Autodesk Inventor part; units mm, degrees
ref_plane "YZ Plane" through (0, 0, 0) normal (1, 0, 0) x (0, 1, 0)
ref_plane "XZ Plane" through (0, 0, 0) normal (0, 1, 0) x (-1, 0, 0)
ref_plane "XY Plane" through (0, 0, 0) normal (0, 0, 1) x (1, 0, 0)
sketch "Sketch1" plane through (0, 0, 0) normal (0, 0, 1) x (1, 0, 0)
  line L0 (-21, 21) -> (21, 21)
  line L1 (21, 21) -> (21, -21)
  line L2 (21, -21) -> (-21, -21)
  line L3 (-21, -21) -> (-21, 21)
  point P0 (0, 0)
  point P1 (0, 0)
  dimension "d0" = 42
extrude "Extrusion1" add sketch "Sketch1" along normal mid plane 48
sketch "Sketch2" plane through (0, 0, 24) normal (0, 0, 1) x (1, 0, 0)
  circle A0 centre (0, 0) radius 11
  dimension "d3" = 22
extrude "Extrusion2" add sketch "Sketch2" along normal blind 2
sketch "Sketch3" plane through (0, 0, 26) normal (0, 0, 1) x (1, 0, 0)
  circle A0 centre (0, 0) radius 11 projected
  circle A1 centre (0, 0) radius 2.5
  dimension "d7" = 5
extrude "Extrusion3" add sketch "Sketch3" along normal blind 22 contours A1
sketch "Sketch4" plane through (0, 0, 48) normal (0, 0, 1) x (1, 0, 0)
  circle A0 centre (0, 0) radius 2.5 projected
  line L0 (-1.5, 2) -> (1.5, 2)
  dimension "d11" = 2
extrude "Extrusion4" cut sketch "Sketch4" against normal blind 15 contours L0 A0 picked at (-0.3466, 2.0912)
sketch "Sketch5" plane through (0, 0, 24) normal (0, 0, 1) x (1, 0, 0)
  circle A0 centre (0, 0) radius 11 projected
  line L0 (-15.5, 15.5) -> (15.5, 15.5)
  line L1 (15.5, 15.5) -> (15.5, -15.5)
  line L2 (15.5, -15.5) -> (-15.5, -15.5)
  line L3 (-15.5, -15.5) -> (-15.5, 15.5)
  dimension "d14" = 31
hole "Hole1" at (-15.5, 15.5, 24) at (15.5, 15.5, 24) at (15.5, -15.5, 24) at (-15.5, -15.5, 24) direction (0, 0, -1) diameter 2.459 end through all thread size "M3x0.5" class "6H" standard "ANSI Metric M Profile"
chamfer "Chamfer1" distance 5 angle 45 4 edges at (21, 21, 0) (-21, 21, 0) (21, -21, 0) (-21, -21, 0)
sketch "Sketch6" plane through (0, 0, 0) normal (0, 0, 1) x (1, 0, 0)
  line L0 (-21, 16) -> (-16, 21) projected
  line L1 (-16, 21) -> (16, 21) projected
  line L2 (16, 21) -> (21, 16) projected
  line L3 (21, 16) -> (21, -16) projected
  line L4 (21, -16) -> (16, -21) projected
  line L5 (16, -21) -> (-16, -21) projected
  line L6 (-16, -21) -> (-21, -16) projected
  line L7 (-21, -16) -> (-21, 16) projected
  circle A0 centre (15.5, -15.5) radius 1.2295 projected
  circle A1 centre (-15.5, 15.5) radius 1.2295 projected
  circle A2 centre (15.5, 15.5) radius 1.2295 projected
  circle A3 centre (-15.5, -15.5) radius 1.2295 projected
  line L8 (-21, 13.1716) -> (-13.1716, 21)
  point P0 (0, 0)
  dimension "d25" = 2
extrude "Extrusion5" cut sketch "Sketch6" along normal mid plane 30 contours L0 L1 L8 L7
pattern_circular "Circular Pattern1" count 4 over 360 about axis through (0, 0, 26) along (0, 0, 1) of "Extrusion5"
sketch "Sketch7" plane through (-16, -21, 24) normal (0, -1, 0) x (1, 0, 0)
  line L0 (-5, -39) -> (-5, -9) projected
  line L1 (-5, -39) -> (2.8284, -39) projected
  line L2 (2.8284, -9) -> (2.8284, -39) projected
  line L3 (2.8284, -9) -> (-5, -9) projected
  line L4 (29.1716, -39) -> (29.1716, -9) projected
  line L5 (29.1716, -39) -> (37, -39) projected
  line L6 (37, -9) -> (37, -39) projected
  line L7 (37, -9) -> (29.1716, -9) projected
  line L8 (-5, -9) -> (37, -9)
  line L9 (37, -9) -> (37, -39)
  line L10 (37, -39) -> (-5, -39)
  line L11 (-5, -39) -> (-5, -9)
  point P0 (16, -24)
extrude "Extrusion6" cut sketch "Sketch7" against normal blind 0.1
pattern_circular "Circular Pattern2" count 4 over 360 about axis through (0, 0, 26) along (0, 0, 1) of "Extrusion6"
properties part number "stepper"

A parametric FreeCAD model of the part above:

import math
import FreeCAD as App
import Part
import Sketcher
from FreeCAD import Vector
Q = App.Units.Quantity


def edges_at(feature, points):
    """Names of the edges that pass closest to the given points."""
    edges = feature.Shape.Edges
    near = lambda p: min(range(len(edges)), key=lambda i: edges[i].distToShape(Part.Vertex(*p))[0])
    return sorted({f"Edge{near(p) + 1}" for p in points})


def add_polygon(sketch, points):
    """Adds a closed chain of lines whose ends are joined by coincident constraints."""
    first, n = sketch.GeometryCount, len(points)
    for a, b in zip(points, points[1:] + points[:1]):
        sketch.addGeometry(Part.LineSegment(App.Vector(*a, 0), App.Vector(*b, 0)), False)
    for i in range(n):
        sketch.addConstraint(Sketcher.Constraint("Coincident", first + i, 2, first + (i + 1) % n, 1))

doc = App.newDocument("Part")
body = doc.addObject("PartDesign::Body", "Body")

# Sketch on XY plane
sketch1 = doc.addObject("Sketcher::SketchObject", "Sketch")
body.addObject(sketch1)
sketch1.AttachmentSupport = (doc.XY_Plane, [""])
sketch1.MapMode = "FlatFace"
add_polygon(sketch1, [(21, 21), (-21, 21), (-21, -21), (21, -21)])  # lines 0-3
sketch1.addConstraint([
    Sketcher.Constraint("Horizontal", 0),
    Sketcher.Constraint("Vertical", 1),
    Sketcher.Constraint("Horizontal", 2),
    Sketcher.Constraint("Vertical", 3),
    Sketcher.Constraint("Symmetric", 0, 2, 2, 2, -1, 1),
    Sketcher.Constraint("Equal", 2, 1),
    Sketcher.Constraint("DistanceX", 0, 2, 0, 1, Q("42 mm")),
])
pad1 = doc.addObject("PartDesign::Pad", "Pad")
body.addObject(pad1)
pad1.Profile = sketch1
pad1.Length = 48
pad1.Midplane = True

# Sketch on XY plane
sketch2 = doc.addObject("Sketcher::SketchObject", "Sketch001")
body.addObject(sketch2)
sketch2.AttachmentSupport = (doc.XY_Plane, [""])
sketch2.MapMode = "FlatFace"
sketch2.AttachmentOffset = App.Placement(Vector(0, 0, 24), App.Rotation())
sketch2.addGeometry(Part.Circle(Vector(0, 0, 0), Vector(0, 0, 1), 11), False)
sketch2.addConstraint([
    Sketcher.Constraint("Coincident", 0, 3, -1, 1),
    Sketcher.Constraint("Diameter", 0, Q("22 mm")),
])
pad2 = doc.addObject("PartDesign::Pad", "Pad001")
body.addObject(pad2)
pad2.Profile = sketch2
pad2.Length = 2

# Sketch on XY plane
sketch3 = doc.addObject("Sketcher::SketchObject", "Sketch002")
body.addObject(sketch3)
sketch3.AttachmentSupport = (doc.XY_Plane, [""])
sketch3.MapMode = "FlatFace"
sketch3.AttachmentOffset = App.Placement(Vector(0, 0, 26), App.Rotation())
sketch3.addGeometry(Part.Circle(Vector(0, 0, 0), Vector(0, 0, 1), 2.5), False)
sketch3.addConstraint([
    Sketcher.Constraint("Coincident", 0, 3, -1, 1),
    Sketcher.Constraint("Diameter", 0, Q("5 mm")),
])
pad3 = doc.addObject("PartDesign::Pad", "Pad002")
body.addObject(pad3)
pad3.Profile = sketch3
pad3.Length = 22

# Sketch on XY plane
sketch4 = doc.addObject("Sketcher::SketchObject", "Sketch003")
body.addObject(sketch4)
sketch4.AttachmentSupport = (doc.XY_Plane, [""])
sketch4.MapMode = "FlatFace"
sketch4.AttachmentOffset = App.Placement(Vector(0, 0, 48), App.Rotation())
sketch4.addGeometry([
    Part.LineSegment(Vector(-1.5, 2, 0), Vector(1.5, 2, 0)),
    Part.ArcOfCircle(Part.Circle(Vector(0, 0, 0), Vector(0, 0, 1), 2.5), math.radians(53), math.radians(127)),
], False)
sketch4.addConstraint([
    Sketcher.Constraint("Coincident", 0, 1, 1, 2),
    Sketcher.Constraint("Coincident", 1, 1, 0, 2),
    Sketcher.Constraint("Horizontal", 0),
    Sketcher.Constraint("Coincident", 1, 3, -1, 1),
    Sketcher.Constraint("DistanceY", -1, 1, 0, 1, Q("2 mm")),
    Sketcher.Constraint("Radius", 1, Q("2.5 mm")),
])
pocket1 = doc.addObject("PartDesign::Pocket", "Pocket")
body.addObject(pocket1)
pocket1.Profile = sketch4
pocket1.Length = 15

# Sketch on XY plane
sketch5 = doc.addObject("Sketcher::SketchObject", "Sketch004")
body.addObject(sketch5)
sketch5.AttachmentSupport = (doc.XY_Plane, [""])
sketch5.MapMode = "FlatFace"
sketch5.AttachmentOffset = App.Placement(Vector(0, 0, 24), App.Rotation())
sketch5.addGeometry([
    Part.Circle(Vector(-15.5, 15.5, 0), Vector(0, 0, 1), 1.2),
    Part.Circle(Vector(15.5, 15.5, 0), Vector(0, 0, 1), 1.2),
    Part.Circle(Vector(15.5, -15.5, 0), Vector(0, 0, 1), 1.2),
    Part.Circle(Vector(-15.5, -15.5, 0), Vector(0, 0, 1), 1.2),
], False)
sketch5.addConstraint([
    Sketcher.Constraint("Equal", 0, 1),
    Sketcher.Constraint("Equal", 1, 2),
    Sketcher.Constraint("Equal", 2, 3),
    Sketcher.Constraint("Symmetric", 0, 3, 2, 3, -1, 1),
    Sketcher.Constraint("Symmetric", 1, 3, 3, 3, -1, 1),
    Sketcher.Constraint("Symmetric", 0, 3, 1, 3, -2),
    Sketcher.Constraint("Diameter", 0, Q("2.459 mm")),
    Sketcher.Constraint("DistanceX", 0, 3, 1, 3, Q("31 mm")),
    Sketcher.Constraint("DistanceY", 2, 3, 1, 3, Q("31 mm")),
])
doc.recompute()
hole = doc.addObject("PartDesign::Hole", "Hole")
body.addObject(hole)
hole.Profile = sketch5
hole.ThreadType = "None"
hole.Diameter = 2.459
hole.DepthType = "ThroughAll"
doc.recompute()

chamfer = doc.addObject("PartDesign::Chamfer", "Chamfer")
body.addObject(chamfer)
chamfer.Base = (hole, edges_at(hole, [
    (21, 21, 0),
    (-21, 21, 0),
    (21, -21, 0),
    (-21, -21, 0),
]))
chamfer.Size = 5

# Sketch on XY plane
sketch6 = doc.addObject("Sketcher::SketchObject", "Sketch005")
body.addObject(sketch6)
sketch6.AttachmentSupport = (doc.XY_Plane, [""])
sketch6.MapMode = "FlatFace"
add_polygon(sketch6, [(-16, 21), (-21, 16), (-21, 13.2), (-13.2, 21)])  # lines 0-3
sketch6.addConstraint([
    Sketcher.Constraint("Vertical", 1),
    Sketcher.Constraint("Horizontal", 3),
    Sketcher.Constraint("Parallel", 0, 2),
    Sketcher.Constraint("Equal", 3, 1),
    Sketcher.Constraint("DistanceX", 0, 2, -1, 1, Q("21 mm")),
    Sketcher.Constraint("DistanceY", -1, 1, 0, 2, Q("16 mm")),
    Sketcher.Constraint("DistanceY", -1, 1, 2, 2, Q("21 mm")),
    Sketcher.Constraint("Distance", 2, Q("11.071 mm")),
])
pocket2 = doc.addObject("PartDesign::Pocket", "Pocket001")
body.addObject(pocket2)
pocket2.Profile = sketch6
pocket2.Length = 30
pocket2.Midplane = True
doc.recompute()

polarpattern = doc.addObject("PartDesign::PolarPattern", "PolarPattern")
body.addObject(polarpattern)
polarpattern.Originals = [pocket2]
polarpattern.Axis = (doc.Z_Axis, [""])
polarpattern.Angle = 360
polarpattern.Occurrences = 4
body.Tip = polarpattern

# Sketch on XZ plane
sketch7 = doc.addObject("Sketcher::SketchObject", "Sketch006")
body.addObject(sketch7)
sketch7.AttachmentSupport = (doc.XZ_Plane, [""])
sketch7.MapMode = "FlatFace"
sketch7.AttachmentOffset = App.Placement(Vector(0, 0, 21), App.Rotation())
add_polygon(sketch7, [(-21, 15), (-21, -15), (21, -15), (21, 15)])  # lines 0-3
sketch7.addConstraint([
    Sketcher.Constraint("Vertical", 0),
    Sketcher.Constraint("Horizontal", 1),
    Sketcher.Constraint("Vertical", 2),
    Sketcher.Constraint("Horizontal", 3),
    Sketcher.Constraint("Symmetric", 0, 2, 2, 2, -1, 1),
    Sketcher.Constraint("DistanceX", 1, 1, 1, 2, Q("42 mm")),
    Sketcher.Constraint("DistanceY", 0, 2, 0, 1, Q("30 mm")),
])
pocket3 = doc.addObject("PartDesign::Pocket", "Pocket002")
body.addObject(pocket3)
pocket3.Profile = sketch7
pocket3.Length = 0.1
doc.recompute()

polarpattern2 = doc.addObject("PartDesign::PolarPattern", "PolarPattern001")
body.addObject(polarpattern2)
polarpattern2.Originals = [pocket3]
polarpattern2.Axis = (doc.Z_Axis, [""])
polarpattern2.Angle = 360
polarpattern2.Occurrences = 4
body.Tip = polarpattern2

doc.recompute()
